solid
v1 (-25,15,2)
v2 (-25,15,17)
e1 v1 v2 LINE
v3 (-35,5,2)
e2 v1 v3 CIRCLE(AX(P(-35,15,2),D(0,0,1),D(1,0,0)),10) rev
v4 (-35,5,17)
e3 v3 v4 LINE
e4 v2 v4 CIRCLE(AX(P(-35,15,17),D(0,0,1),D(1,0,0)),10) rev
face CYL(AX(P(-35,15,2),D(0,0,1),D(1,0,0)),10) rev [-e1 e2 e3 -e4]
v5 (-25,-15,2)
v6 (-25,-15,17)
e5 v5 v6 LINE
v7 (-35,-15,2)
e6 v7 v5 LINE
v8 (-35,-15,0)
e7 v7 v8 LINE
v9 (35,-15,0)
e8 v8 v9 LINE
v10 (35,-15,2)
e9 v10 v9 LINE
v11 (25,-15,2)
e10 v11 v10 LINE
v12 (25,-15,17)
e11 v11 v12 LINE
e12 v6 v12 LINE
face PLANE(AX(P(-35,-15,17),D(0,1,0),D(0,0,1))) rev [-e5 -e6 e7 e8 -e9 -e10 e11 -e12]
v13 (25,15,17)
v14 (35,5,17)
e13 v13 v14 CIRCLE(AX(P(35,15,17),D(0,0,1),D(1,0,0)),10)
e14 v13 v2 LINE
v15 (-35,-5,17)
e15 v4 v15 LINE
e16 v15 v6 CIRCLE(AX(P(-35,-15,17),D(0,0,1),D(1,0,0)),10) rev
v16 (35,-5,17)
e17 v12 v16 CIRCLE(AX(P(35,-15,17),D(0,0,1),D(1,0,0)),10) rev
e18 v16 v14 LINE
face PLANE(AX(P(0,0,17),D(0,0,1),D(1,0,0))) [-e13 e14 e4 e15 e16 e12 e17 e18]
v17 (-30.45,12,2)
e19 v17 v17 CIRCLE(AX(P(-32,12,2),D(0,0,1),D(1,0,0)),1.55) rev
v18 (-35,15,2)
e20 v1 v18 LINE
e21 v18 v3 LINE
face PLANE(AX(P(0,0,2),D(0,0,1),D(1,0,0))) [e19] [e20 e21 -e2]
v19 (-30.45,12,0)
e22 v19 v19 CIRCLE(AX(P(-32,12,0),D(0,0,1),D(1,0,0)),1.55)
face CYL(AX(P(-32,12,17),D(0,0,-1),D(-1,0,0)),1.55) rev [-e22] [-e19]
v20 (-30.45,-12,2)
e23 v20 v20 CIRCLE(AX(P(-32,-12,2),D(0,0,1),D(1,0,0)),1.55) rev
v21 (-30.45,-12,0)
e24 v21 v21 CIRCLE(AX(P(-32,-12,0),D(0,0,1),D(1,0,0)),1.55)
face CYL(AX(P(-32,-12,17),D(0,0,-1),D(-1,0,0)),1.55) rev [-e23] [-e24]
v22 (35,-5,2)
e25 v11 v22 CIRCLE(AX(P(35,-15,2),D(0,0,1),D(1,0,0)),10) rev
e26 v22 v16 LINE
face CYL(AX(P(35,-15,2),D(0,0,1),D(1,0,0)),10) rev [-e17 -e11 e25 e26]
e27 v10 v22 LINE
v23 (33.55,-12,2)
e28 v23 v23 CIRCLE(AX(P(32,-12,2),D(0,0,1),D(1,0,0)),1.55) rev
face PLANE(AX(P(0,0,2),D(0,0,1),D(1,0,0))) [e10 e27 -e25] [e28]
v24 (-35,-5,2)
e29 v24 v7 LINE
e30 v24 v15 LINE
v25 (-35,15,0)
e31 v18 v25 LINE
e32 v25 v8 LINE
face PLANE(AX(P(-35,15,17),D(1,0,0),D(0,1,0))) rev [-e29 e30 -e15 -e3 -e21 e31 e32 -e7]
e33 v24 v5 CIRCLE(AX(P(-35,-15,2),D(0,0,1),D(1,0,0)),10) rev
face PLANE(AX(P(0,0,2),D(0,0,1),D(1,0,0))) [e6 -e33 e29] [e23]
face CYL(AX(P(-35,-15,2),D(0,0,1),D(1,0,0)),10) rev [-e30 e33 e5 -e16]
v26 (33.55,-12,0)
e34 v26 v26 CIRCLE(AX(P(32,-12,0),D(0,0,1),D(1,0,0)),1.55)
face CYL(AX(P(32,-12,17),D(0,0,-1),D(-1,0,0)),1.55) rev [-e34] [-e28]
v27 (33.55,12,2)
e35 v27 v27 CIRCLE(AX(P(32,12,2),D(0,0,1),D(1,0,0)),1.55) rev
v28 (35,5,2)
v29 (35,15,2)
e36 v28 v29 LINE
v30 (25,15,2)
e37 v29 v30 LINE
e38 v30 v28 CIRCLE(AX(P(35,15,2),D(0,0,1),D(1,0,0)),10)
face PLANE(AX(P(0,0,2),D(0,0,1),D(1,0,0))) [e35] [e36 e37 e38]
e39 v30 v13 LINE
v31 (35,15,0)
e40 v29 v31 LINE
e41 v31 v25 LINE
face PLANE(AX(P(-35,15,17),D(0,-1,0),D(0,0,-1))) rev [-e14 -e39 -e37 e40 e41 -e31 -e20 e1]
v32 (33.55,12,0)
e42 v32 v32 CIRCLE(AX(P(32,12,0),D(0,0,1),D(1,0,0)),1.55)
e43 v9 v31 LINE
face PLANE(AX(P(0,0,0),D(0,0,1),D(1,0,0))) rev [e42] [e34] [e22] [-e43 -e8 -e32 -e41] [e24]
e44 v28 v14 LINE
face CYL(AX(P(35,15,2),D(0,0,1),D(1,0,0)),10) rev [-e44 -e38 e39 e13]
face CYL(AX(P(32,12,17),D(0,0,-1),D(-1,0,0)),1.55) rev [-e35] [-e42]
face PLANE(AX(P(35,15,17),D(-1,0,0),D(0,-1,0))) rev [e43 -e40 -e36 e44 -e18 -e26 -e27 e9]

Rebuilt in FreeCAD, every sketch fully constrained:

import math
import FreeCAD as App
import Part
import Sketcher
from FreeCAD import Vector
Q = App.Units.Quantity

doc = App.newDocument("Part")
body = doc.addObject("PartDesign::Body", "Body")

# Sketch on XY plane
sketch1 = body.newObject("Sketcher::SketchObject", "Sketch")
sketch1.AttachmentSupport = (doc.getObject("XY_Plane"), [""])
sketch1.MapMode = "FlatFace"
sketch1.addGeometry(Part.LineSegment(Vector(-35, 15, 0), Vector(-35, -15, 0)), False)
sketch1.addGeometry(Part.LineSegment(Vector(-35, -15, 0), Vector(35, -15, 0)), False)
sketch1.addGeometry(Part.LineSegment(Vector(35, -15, 0), Vector(35, 15, 0)), False)
sketch1.addGeometry(Part.LineSegment(Vector(35, 15, 0), Vector(-35, 15, 0)), False)
sketch1.addGeometry(Part.Circle(Vector(-32, -12, 0), Vector(0, 0, 1), 1.6), False)
sketch1.addGeometry(Part.Circle(Vector(32, -12, 0), Vector(0, 0, 1), 1.6), False)
sketch1.addGeometry(Part.Circle(Vector(-32, 12, 0), Vector(0, 0, 1), 1.6), False)
sketch1.addGeometry(Part.Circle(Vector(32, 12, 0), Vector(0, 0, 1), 1.6), False)
sketch1.addConstraint(Sketcher.Constraint("Coincident", 0, 2, 1, 1))
sketch1.addConstraint(Sketcher.Constraint("Coincident", 1, 2, 2, 1))
sketch1.addConstraint(Sketcher.Constraint("Coincident", 2, 2, 3, 1))
sketch1.addConstraint(Sketcher.Constraint("Coincident", 3, 2, 0, 1))
sketch1.addConstraint(Sketcher.Constraint("Vertical", 0))
sketch1.addConstraint(Sketcher.Constraint("Horizontal", 1))
sketch1.addConstraint(Sketcher.Constraint("Vertical", 2))
sketch1.addConstraint(Sketcher.Constraint("Horizontal", 3))
sketch1.addConstraint(Sketcher.Constraint("Equal", 4, 5))
sketch1.addConstraint(Sketcher.Constraint("Equal", 5, 6))
sketch1.addConstraint(Sketcher.Constraint("Equal", 6, 7))
sketch1.addConstraint(Sketcher.Constraint("Symmetric", 5, 3, 6, 3, -1, 1))
sketch1.addConstraint(Sketcher.Constraint("Symmetric", 4, 3, 7, 3, -1, 1))
sketch1.addConstraint(Sketcher.Constraint("Symmetric", 0, 2, 2, 2, -1, 1))
sketch1.addConstraint(Sketcher.Constraint("Symmetric", 4, 3, 5, 3, -2))
sketch1.addConstraint(Sketcher.Constraint("Diameter", 4, Q("3.1 mm")))
sketch1.addConstraint(Sketcher.Constraint("DistanceX", 1, 1, 1, 2, Q("70 mm")))
sketch1.addConstraint(Sketcher.Constraint("DistanceY", 0, 2, 0, 1, Q("30 mm")))
sketch1.addConstraint(Sketcher.Constraint("DistanceX", 4, 3, -1, 1, Q("32 mm")))
sketch1.addConstraint(Sketcher.Constraint("DistanceY", 4, 3, -1, 1, Q("12 mm")))
pad1 = body.newObject("PartDesign::Pad", "Pad")
pad1.Profile = sketch1
pad1.Length = 17

# Sketch on XY plane
sketch2 = body.newObject("Sketcher::SketchObject", "Sketch001")
sketch2.AttachmentSupport = (doc.getObject("XY_Plane"), [""])
sketch2.MapMode = "FlatFace"
sketch2.AttachmentOffset = App.Placement(Vector(0, 0, 17), App.Rotation())
sketch2.addGeometry(Part.LineSegment(Vector(-35, 15, 0), Vector(-35, 5, 0)), False)
sketch2.addGeometry(Part.ArcOfCircle(Part.Circle(Vector(-35, 15, 0), Vector(0, 0, 1), 10), math.radians(-90), math.radians(0)), False)
sketch2.addGeometry(Part.LineSegment(Vector(-25, 15, 0), Vector(-35, 15, 0)), False)
sketch2.addGeometry(Part.Circle(Vector(-32, 12, 0), Vector(0, 0, 1), 1.6), False)
sketch2.addGeometry(Part.LineSegment(Vector(35, 15, 0), Vector(25, 15, 0)), False)
sketch2.addGeometry(Part.ArcOfCircle(Part.Circle(Vector(35, 15, 0), Vector(0, 0, 1), 10), math.radians(180), math.radians(270)), False)
sketch2.addGeometry(Part.LineSegment(Vector(35, 5, 0), Vector(35, 15, 0)), False)
sketch2.addGeometry(Part.Circle(Vector(32, 12, 0), Vector(0, 0, 1), 1.6), False)
sketch2.addGeometry(Part.ArcOfCircle(Part.Circle(Vector(35, -15, 0), Vector(0, 0, 1), 10), math.radians(90), math.radians(180)), False)
sketch2.addGeometry(Part.LineSegment(Vector(25, -15, 0), Vector(35, -15, 0)), False)
sketch2.addGeometry(Part.LineSegment(Vector(35, -15, 0), Vector(35, -5, 0)), False)
sketch2.addGeometry(Part.Circle(Vector(32, -12, 0), Vector(0, 0, 1), 1.6), False)
sketch2.addGeometry(Part.ArcOfCircle(Part.Circle(Vector(-35, -15, 0), Vector(0, 0, 1), 10), math.radians(0), math.radians(90)), False)
sketch2.addGeometry(Part.LineSegment(Vector(-35, -5, 0), Vector(-35, -15, 0)), False)
sketch2.addGeometry(Part.LineSegment(Vector(-35, -15, 0), Vector(-25, -15, 0)), False)
sketch2.addGeometry(Part.Circle(Vector(-32, -12, 0), Vector(0, 0, 1), 1.6), False)
sketch2.addConstraint(Sketcher.Constraint("Coincident", 0, 2, 1, 1))
sketch2.addConstraint(Sketcher.Constraint("Coincident", 1, 2, 2, 1))
sketch2.addConstraint(Sketcher.Constraint("Coincident", 2, 2, 0, 1))
sketch2.addConstraint(Sketcher.Constraint("Coincident", 4, 2, 5, 1))
sketch2.addConstraint(Sketcher.Constraint("Coincident", 5, 2, 6, 1))
sketch2.addConstraint(Sketcher.Constraint("Coincident", 6, 2, 4, 1))
sketch2.addConstraint(Sketcher.Constraint("Coincident", 8, 2, 9, 1))
sketch2.addConstraint(Sketcher.Constraint("Coincident", 9, 2, 10, 1))
sketch2.addConstraint(Sketcher.Constraint("Coincident", 10, 2, 8, 1))
sketch2.addConstraint(Sketcher.Constraint("Coincident", 12, 2, 13, 1))
sketch2.addConstraint(Sketcher.Constraint("Coincident", 13, 2, 14, 1))
sketch2.addConstraint(Sketcher.Constraint("Coincident", 14, 2, 12, 1))
sketch2.addConstraint(Sketcher.Constraint("Vertical", 0))
sketch2.addConstraint(Sketcher.Constraint("Horizontal", 2))
sketch2.addConstraint(Sketcher.Constraint("Horizontal", 4))
sketch2.addConstraint(Sketcher.Constraint("Vertical", 6))
sketch2.addConstraint(Sketcher.Constraint("Horizontal", 9))
sketch2.addConstraint(Sketcher.Constraint("Vertical", 10))
sketch2.addConstraint(Sketcher.Constraint("Vertical", 13))
sketch2.addConstraint(Sketcher.Constraint("Horizontal", 14))
sketch2.addConstraint(Sketcher.Constraint("Coincident", 2, 2, 1, 3))
sketch2.addConstraint(Sketcher.Constraint("Coincident", 6, 2, 5, 3))
sketch2.addConstraint(Sketcher.Constraint("Coincident", 9, 2, 8, 3))
sketch2.addConstraint(Sketcher.Constraint("Coincident", 13, 2, 12, 3))
sketch2.addConstraint(Sketcher.Constraint("Equal", 1, 5))
sketch2.addConstraint(Sketcher.Constraint("Equal", 3, 7))
sketch2.addConstraint(Sketcher.Constraint("Equal", 5, 8))
sketch2.addConstraint(Sketcher.Constraint("Equal", 7, 11))
sketch2.addConstraint(Sketcher.Constraint("Equal", 8, 12))
sketch2.addConstraint(Sketcher.Constraint("Equal", 11, 15))
sketch2.addConstraint(Sketcher.Constraint("Symmetric", 1, 3, 8, 3, -1, 1))
sketch2.addConstraint(Sketcher.Constraint("Symmetric", 3, 3, 11, 3, -1, 1))
sketch2.addConstraint(Sketcher.Constraint("Symmetric", 5, 3, 12, 3, -1, 1))
sketch2.addConstraint(Sketcher.Constraint("Symmetric", 7, 3, 15, 3, -1, 1))
sketch2.addConstraint(Sketcher.Constraint("Symmetric", 1, 3, 5, 3, -2))
sketch2.addConstraint(Sketcher.Constraint("Symmetric", 3, 3, 7, 3, -2))
sketch2.addConstraint(Sketcher.Constraint("Radius", 1, Q("10 mm")))
sketch2.addConstraint(Sketcher.Constraint("Diameter", 3, Q("3.1 mm")))
sketch2.addConstraint(Sketcher.Constraint("DistanceX", 1, 3, -1, 1, Q("35 mm")))
sketch2.addConstraint(Sketcher.Constraint("DistanceY", -1, 1, 1, 3, Q("15 mm")))
sketch2.addConstraint(Sketcher.Constraint("DistanceX", 3, 3, -1, 1, Q("32 mm")))
sketch2.addConstraint(Sketcher.Constraint("DistanceY", -1, 1, 3, 3, Q("12 mm")))
pocket1 = body.newObject("PartDesign::Pocket", "Pocket")
pocket1.Profile = sketch2
pocket1.Length = 15

doc.recompute()
